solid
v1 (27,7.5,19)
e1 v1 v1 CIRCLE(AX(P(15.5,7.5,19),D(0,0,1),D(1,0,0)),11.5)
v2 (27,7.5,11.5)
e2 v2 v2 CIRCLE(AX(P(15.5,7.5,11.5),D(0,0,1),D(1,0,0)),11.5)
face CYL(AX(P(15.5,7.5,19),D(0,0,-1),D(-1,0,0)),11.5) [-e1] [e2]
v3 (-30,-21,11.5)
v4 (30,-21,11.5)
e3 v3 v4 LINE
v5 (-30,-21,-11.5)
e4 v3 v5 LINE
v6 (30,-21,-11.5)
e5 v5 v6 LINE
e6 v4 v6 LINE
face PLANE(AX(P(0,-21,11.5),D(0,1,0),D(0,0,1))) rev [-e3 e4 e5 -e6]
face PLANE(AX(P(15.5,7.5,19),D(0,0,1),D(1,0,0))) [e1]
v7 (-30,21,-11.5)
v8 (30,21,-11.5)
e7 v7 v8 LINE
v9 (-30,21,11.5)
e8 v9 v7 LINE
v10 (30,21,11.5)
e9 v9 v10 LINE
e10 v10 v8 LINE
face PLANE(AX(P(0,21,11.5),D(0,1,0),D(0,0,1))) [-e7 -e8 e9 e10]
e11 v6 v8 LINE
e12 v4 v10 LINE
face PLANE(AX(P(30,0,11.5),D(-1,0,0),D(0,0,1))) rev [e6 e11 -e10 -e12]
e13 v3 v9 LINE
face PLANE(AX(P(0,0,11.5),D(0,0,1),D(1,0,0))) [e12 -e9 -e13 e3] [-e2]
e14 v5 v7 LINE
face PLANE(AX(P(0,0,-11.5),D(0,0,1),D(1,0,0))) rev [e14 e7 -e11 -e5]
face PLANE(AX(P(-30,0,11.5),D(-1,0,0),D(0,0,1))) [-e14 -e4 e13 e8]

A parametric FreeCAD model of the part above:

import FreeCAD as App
import Part
import Sketcher

V = App.Vector


def add_polygon(sketch, points):
    """Adds a closed chain of lines whose ends are joined by coincident constraints."""
    first, n = sketch.GeometryCount, len(points)
    for a, b in zip(points, points[1:] + points[:1]):
        sketch.addGeometry(Part.LineSegment(App.Vector(*a, 0), App.Vector(*b, 0)), False)
    for i in range(n):
        sketch.addConstraint(Sketcher.Constraint("Coincident", first + i, 2, first + (i + 1) % n, 1))

doc = App.newDocument("Part")
body = doc.addObject("PartDesign::Body", "Body")

sketch1 = doc.addObject("Sketcher::SketchObject", "Sketch")
body.addObject(sketch1)
sketch1.AttachmentSupport = (doc.XY_Plane, [""])
sketch1.MapMode = "FlatFace"
add_polygon(sketch1, [(-30, 21), (-30, -21), (30, -21), (30, 21)])
sketch1.addConstraint(Sketcher.Constraint("Vertical", 0))
sketch1.addConstraint(Sketcher.Constraint("Horizontal", 1))
sketch1.addConstraint(Sketcher.Constraint("Vertical", 2))
sketch1.addConstraint(Sketcher.Constraint("Horizontal", 3))
sketch1.addConstraint(Sketcher.Constraint("Symmetric", 0, 2, 2, 2, -1, 1))
sketch1.addConstraint(Sketcher.Constraint("DistanceX", 1, 1, 1, 2, 60.0))
sketch1.addConstraint(Sketcher.Constraint("DistanceY", 0, 2, 0, 1, 42.0))
pad1 = doc.addObject("PartDesign::Pad", "Pad")
body.addObject(pad1)
pad1.Profile = sketch1
pad1.Length = 23
pad1.Midplane = True

sketch2 = doc.addObject("Sketcher::SketchObject", "Sketch001")
body.addObject(sketch2)
sketch2.AttachmentSupport = (doc.XY_Plane, [""])
sketch2.MapMode = "FlatFace"
sketch2.AttachmentOffset = App.Placement(V(0, 0, 11.5), App.Rotation())
sketch2.addGeometry(Part.Circle(V(16, 8, 0), V(0, 0, 1), 12), False)
sketch2.addConstraint(Sketcher.Constraint("Diameter", 0, 23.0))
sketch2.addConstraint(Sketcher.Constraint("DistanceX", -1, 1, 0, 3, 15.5))
sketch2.addConstraint(Sketcher.Constraint("DistanceY", -1, 1, 0, 3, 7.5))
pad2 = doc.addObject("PartDesign::Pad", "Pad001")
body.addObject(pad2)
pad2.Profile = sketch2
pad2.Length = 7.5

doc.recompute()
